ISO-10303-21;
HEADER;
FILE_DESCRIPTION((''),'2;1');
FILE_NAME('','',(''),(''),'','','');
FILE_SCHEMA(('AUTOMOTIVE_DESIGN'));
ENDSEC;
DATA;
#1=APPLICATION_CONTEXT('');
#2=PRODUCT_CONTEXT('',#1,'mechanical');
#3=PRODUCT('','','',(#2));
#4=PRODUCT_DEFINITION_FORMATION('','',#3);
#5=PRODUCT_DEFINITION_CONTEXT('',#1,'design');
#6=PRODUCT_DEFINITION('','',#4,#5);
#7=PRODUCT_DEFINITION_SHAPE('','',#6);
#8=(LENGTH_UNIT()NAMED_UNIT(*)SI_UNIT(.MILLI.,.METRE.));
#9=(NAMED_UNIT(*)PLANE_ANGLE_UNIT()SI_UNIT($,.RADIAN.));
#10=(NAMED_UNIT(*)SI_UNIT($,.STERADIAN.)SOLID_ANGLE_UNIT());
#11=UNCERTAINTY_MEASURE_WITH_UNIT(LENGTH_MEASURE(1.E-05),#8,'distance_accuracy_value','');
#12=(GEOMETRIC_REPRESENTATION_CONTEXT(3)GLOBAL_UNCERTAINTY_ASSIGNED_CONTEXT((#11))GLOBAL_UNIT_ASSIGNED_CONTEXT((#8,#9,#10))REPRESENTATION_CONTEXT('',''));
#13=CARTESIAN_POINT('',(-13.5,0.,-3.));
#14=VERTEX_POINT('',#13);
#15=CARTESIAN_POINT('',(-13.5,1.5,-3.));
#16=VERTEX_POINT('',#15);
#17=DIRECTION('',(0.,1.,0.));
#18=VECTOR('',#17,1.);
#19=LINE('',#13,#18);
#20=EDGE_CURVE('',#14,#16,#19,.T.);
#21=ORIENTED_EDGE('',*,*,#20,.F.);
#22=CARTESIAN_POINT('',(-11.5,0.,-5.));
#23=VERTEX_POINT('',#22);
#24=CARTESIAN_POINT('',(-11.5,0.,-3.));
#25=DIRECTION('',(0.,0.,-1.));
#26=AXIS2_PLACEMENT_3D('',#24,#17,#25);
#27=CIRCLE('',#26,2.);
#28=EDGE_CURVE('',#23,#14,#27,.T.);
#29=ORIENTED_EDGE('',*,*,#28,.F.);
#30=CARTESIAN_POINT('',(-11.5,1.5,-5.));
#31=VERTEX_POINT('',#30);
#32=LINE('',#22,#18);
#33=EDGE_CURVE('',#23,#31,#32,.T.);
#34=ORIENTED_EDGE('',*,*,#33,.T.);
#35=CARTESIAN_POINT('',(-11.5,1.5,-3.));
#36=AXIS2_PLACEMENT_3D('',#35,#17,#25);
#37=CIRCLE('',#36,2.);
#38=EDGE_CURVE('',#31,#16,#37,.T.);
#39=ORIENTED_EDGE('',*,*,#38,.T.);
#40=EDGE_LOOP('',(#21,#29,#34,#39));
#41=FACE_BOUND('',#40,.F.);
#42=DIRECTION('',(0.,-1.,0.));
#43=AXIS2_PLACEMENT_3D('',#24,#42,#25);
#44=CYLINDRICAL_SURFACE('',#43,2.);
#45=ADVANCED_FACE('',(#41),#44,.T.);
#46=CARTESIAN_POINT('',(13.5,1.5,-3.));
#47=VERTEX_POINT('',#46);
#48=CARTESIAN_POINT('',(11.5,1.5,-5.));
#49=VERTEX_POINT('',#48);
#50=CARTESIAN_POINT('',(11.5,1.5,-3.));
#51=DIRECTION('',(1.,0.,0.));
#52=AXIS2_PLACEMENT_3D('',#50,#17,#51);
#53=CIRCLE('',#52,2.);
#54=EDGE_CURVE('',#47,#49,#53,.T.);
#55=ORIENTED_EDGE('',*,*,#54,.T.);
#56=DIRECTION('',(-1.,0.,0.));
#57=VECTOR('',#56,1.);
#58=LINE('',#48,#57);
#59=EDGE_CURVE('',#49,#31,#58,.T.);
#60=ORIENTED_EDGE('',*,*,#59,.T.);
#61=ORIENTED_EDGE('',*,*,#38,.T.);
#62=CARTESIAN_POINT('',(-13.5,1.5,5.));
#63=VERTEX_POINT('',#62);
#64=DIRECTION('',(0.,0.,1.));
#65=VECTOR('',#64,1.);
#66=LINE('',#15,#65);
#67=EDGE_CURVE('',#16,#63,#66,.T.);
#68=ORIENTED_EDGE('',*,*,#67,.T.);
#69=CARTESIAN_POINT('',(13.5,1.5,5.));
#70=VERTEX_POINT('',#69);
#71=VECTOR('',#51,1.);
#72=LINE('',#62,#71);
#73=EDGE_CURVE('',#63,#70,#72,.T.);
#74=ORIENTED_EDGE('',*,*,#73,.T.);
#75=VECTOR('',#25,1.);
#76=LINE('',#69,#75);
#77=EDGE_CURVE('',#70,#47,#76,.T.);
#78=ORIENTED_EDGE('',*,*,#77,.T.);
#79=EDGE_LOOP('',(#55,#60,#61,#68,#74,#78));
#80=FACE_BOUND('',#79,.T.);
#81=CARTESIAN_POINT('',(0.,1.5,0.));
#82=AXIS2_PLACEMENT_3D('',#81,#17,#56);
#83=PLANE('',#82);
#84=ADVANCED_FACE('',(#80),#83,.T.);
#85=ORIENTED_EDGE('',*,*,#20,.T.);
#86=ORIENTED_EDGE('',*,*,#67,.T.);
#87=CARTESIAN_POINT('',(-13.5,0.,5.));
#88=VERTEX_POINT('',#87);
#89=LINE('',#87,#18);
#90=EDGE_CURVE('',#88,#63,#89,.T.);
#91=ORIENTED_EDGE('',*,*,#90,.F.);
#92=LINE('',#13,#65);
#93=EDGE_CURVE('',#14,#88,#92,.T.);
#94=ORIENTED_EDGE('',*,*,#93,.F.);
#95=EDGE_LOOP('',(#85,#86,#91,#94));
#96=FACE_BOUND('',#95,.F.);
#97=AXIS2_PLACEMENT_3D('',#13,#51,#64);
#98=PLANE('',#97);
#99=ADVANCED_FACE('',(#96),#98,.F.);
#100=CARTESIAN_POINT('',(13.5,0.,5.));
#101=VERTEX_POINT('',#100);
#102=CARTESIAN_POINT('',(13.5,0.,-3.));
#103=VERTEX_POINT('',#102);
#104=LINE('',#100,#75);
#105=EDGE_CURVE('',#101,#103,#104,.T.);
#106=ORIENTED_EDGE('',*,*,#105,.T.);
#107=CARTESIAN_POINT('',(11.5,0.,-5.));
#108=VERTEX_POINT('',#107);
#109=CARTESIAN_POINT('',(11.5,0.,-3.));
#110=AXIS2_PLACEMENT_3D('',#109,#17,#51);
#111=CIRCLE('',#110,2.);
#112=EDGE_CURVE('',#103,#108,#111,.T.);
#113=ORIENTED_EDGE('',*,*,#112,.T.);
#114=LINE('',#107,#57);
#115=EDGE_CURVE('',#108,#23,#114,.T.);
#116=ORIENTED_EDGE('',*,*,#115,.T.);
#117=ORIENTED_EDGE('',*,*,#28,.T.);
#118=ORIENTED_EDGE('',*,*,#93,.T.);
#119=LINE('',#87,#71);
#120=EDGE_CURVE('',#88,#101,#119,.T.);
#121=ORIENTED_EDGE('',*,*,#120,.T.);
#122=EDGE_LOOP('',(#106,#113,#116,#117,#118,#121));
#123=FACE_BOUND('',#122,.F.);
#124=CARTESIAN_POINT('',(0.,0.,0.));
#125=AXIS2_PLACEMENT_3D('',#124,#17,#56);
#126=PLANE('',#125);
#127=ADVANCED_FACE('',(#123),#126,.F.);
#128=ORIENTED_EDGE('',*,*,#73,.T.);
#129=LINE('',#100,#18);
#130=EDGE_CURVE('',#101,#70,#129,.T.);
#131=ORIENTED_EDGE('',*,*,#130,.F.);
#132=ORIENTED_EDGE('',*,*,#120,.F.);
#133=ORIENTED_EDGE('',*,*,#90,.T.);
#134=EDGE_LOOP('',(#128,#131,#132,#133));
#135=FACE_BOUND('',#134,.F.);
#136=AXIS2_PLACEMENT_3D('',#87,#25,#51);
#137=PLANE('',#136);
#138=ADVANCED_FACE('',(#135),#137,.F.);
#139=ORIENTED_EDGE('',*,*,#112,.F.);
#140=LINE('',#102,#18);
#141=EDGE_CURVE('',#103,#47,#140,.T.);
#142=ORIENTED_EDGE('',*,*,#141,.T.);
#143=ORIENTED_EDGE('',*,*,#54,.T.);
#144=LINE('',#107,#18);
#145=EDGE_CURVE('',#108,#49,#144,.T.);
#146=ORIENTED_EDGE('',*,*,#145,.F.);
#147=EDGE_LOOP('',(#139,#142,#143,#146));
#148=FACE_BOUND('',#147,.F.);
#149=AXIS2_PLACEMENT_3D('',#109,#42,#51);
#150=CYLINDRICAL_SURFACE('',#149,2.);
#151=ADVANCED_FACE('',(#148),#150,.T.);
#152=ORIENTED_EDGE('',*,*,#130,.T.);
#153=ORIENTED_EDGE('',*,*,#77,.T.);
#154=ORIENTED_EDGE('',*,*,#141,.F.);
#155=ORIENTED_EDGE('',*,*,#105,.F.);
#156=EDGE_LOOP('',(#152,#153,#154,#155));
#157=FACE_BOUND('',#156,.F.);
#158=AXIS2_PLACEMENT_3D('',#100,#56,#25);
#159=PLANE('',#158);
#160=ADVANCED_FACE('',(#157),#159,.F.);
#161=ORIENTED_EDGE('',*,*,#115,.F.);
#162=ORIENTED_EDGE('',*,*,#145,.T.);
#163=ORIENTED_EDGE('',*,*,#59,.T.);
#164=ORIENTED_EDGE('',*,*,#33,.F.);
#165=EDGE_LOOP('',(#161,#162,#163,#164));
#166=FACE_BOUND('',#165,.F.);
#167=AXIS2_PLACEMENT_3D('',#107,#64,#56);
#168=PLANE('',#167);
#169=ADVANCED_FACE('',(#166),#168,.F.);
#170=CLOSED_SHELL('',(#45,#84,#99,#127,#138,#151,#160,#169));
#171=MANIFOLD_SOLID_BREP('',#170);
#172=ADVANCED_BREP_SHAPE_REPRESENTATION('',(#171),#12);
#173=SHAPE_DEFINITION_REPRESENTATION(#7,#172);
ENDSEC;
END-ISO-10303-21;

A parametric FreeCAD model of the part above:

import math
import FreeCAD as App
import Part
import Sketcher
from FreeCAD import Vector
Q = App.Units.Quantity

doc = App.newDocument("Part")
body = doc.addObject("PartDesign::Body", "Body")

# Sketch on XZ plane
sketch1 = body.newObject("Sketcher::SketchObject", "Sketch")
sketch1.AttachmentSupport = (doc.getObject("XZ_Plane"), [""])
sketch1.MapMode = "FlatFace"
sketch1.addGeometry(Part.LineSegment(Vector(-13.5, -3, 0), Vector(-13.5, 5, 0)), False)
sketch1.addGeometry(Part.LineSegment(Vector(-13.5, 5, 0), Vector(13.5, 5, 0)), False)
sketch1.addGeometry(Part.LineSegment(Vector(13.5, 5, 0), Vector(13.5, -3, 0)), False)
sketch1.addGeometry(Part.ArcOfCircle(Part.Circle(Vector(11.5, -3, 0), Vector(0, 0, 1), 2), math.radians(-90), math.radians(0)), False)
sketch1.addGeometry(Part.LineSegment(Vector(11.5, -5, 0), Vector(-11.5, -5, 0)), False)
sketch1.addGeometry(Part.ArcOfCircle(Part.Circle(Vector(-11.5, -3, 0), Vector(0, 0, 1), 2), math.radians(180), math.radians(270)), False)
sketch1.addConstraint(Sketcher.Constraint("Coincident", 0, 2, 1, 1))
sketch1.addConstraint(Sketcher.Constraint("Coincident", 1, 2, 2, 1))
sketch1.addConstraint(Sketcher.Constraint("Tangent", 2, 2, 3, 2))
sketch1.addConstraint(Sketcher.Constraint("Tangent", 3, 1, 4, 1))
sketch1.addConstraint(Sketcher.Constraint("Tangent", 4, 2, 5, 2))
sketch1.addConstraint(Sketcher.Constraint("Tangent", 5, 1, 0, 1))
sketch1.addConstraint(Sketcher.Constraint("Vertical", 0))
sketch1.addConstraint(Sketcher.Constraint("Horizontal", 1))
sketch1.addConstraint(Sketcher.Constraint("Vertical", 2))
sketch1.addConstraint(Sketcher.Constraint("Horizontal", 4))
sketch1.addConstraint(Sketcher.Constraint("Equal", 3, 5))
sketch1.addConstraint(Sketcher.Constraint("Radius", 3, Q("2 mm")))
sketch1.addConstraint(Sketcher.Constraint("DistanceX", 1, 1, 1, 2, Q("27 mm")))
sketch1.addConstraint(Sketcher.Constraint("DistanceY", 3, 1, 1, 2, Q("10 mm")))
sketch1.addConstraint(Sketcher.Constraint("DistanceY", 3, 3, -1, 1, Q("3 mm")))
sketch1.addConstraint(Sketcher.Constraint("DistanceX", -1, 1, 3, 3, Q("11.5 mm")))
pad1 = body.newObject("PartDesign::Pad", "Pad")
pad1.Profile = sketch1
pad1.Length = 1.5
pad1.Reversed = True

doc.recompute()
